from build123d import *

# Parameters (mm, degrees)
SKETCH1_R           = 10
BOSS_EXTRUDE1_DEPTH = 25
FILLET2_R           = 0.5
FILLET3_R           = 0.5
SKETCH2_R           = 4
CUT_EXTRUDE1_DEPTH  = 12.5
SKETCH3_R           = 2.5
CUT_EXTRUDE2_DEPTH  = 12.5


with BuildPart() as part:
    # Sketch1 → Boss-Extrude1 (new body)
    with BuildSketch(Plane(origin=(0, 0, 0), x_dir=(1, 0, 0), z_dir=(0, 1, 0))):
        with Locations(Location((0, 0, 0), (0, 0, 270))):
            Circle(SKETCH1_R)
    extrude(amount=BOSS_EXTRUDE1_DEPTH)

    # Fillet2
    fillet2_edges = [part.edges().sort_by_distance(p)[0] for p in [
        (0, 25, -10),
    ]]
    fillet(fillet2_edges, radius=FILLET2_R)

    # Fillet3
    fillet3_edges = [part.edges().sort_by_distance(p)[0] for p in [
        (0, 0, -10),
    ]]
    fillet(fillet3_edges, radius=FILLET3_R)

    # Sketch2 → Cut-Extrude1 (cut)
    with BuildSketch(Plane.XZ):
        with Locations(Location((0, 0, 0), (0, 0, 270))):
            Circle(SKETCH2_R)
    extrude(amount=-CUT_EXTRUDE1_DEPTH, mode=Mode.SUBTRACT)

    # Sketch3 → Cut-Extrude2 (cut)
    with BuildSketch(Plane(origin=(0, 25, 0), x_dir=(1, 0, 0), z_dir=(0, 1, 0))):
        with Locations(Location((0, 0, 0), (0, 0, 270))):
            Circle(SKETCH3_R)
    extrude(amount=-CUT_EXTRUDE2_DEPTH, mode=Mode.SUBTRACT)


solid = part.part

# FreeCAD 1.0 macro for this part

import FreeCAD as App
import Part
import Sketcher


def edges_at(feature, points):
    """Names of the edges that pass closest to the given points."""
    edges = feature.Shape.Edges
    near = lambda p: min(range(len(edges)), key=lambda i: edges[i].distToShape(Part.Vertex(*p))[0])
    return sorted({f"Edge{near(p) + 1}" for p in points})

doc = App.newDocument("Part")
body = doc.addObject("PartDesign::Body", "Body")

sketch1 = body.newObject("Sketcher::SketchObject", "Sketch")
sketch1.AttachmentSupport = (doc.getObject("XZ_Plane"), [""])
sketch1.MapMode = "FlatFace"
sketch1.addGeometry(Part.Circle(App.Vector(0, 0, 0), App.Vector(0, 0, 1), 10), False)
sketch1.addConstraint(Sketcher.Constraint("Coincident", 0, 3, -1, 1))
sketch1.addConstraint(Sketcher.Constraint("Diameter", 0, 20.0))
pad1 = body.newObject("PartDesign::Pad", "Pad")
pad1.Profile = sketch1
pad1.Length = 25
pad1.Reversed = True
doc.recompute()

fillet = body.newObject("PartDesign::Fillet", "Fillet")
fillet.Base = (pad1, edges_at(pad1, [(0, 25, -10)]))
fillet.Radius = 0.5
doc.recompute()

fillet2 = body.newObject("PartDesign::Fillet", "Fillet001")
fillet2.Base = (fillet, edges_at(fillet, [(0, 0, -10)]))
fillet2.Radius = 0.5

sketch2 = body.newObject("Sketcher::SketchObject", "Sketch001")
sketch2.AttachmentSupport = (doc.getObject("XZ_Plane"), [""])
sketch2.MapMode = "FlatFace"
sketch2.addGeometry(Part.Circle(App.Vector(0, 0, 0), App.Vector(0, 0, 1), 4), False)
sketch2.addConstraint(Sketcher.Constraint("Coincident", 0, 3, -1, 1))
sketch2.addConstraint(Sketcher.Constraint("Diameter", 0, 8.0))
pocket1 = body.newObject("PartDesign::Pocket", "Pocket")
pocket1.Profile = sketch2
pocket1.Length = 12.5

sketch3 = body.newObject("Sketcher::SketchObject", "Sketch002")
sketch3.AttachmentSupport = (doc.getObject("XZ_Plane"), [""])
sketch3.MapMode = "FlatFace"
sketch3.AttachmentOffset = App.Placement(App.Vector(0, 0, -25), App.Rotation())
sketch3.addGeometry(Part.Circle(App.Vector(0, 0, 0), App.Vector(0, 0, 1), 2.5), False)
sketch3.addConstraint(Sketcher.Constraint("Coincident", 0, 3, -1, 1))
sketch3.addConstraint(Sketcher.Constraint("Diameter", 0, 5.0))
pocket2 = body.newObject("PartDesign::Pocket", "Pocket001")
pocket2.Profile = sketch3
pocket2.Length = 12.5
pocket2.Reversed = True

doc.recompute()
